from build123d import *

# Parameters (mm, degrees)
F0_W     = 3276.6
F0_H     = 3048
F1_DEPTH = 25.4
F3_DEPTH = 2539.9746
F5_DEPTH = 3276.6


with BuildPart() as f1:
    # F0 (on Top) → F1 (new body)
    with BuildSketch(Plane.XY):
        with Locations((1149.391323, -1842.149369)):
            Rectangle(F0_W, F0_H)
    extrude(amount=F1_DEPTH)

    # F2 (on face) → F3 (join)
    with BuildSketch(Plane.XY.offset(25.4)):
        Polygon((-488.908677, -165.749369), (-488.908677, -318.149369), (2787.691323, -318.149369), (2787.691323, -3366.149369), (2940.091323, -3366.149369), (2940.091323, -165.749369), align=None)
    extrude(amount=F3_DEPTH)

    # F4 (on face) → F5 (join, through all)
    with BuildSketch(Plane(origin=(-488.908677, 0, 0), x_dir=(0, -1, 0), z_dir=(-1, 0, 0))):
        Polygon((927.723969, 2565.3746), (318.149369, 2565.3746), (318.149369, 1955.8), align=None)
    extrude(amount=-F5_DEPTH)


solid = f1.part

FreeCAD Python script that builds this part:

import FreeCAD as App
import Part
import Sketcher
Q = App.Units.Quantity

doc = App.newDocument("Part")
body = doc.addObject("PartDesign::Body", "Body")
body.AllowCompound = True

# Sketch on XY plane
sketch1 = doc.addObject("Sketcher::SketchObject", "Sketch")
body.addObject(sketch1)
sketch1.AttachmentSupport = (doc.XY_Plane, [""])
sketch1.MapMode = "FlatFace"
sketch1.addGeometry(Part.LineSegment(App.Vector(-488.908677, -318.149369, 0), App.Vector(-488.908677, -3366.149369, 0)), False)
sketch1.addGeometry(Part.LineSegment(App.Vector(-488.908677, -3366.149369, 0), App.Vector(2787.691323, -3366.149369, 0)), False)
sketch1.addGeometry(Part.LineSegment(App.Vector(2787.691323, -3366.149369, 0), App.Vector(2787.691323, -318.149369, 0)), False)
sketch1.addGeometry(Part.LineSegment(App.Vector(2787.691323, -318.149369, 0), App.Vector(-488.908677, -318.149369, 0)), False)
sketch1.addConstraint(Sketcher.Constraint("Coincident", 0, 2, 1, 1))
sketch1.addConstraint(Sketcher.Constraint("Coincident", 1, 2, 2, 1))
sketch1.addConstraint(Sketcher.Constraint("Coincident", 2, 2, 3, 1))
sketch1.addConstraint(Sketcher.Constraint("Coincident", 3, 2, 0, 1))
sketch1.addConstraint(Sketcher.Constraint("Vertical", 0))
sketch1.addConstraint(Sketcher.Constraint("Horizontal", 1))
sketch1.addConstraint(Sketcher.Constraint("Vertical", 2))
sketch1.addConstraint(Sketcher.Constraint("Horizontal", 3))
sketch1.addConstraint(Sketcher.Constraint("DistanceX", 1, 1, 1, 2, Q("129 in")))
sketch1.addConstraint(Sketcher.Constraint("DistanceY", 0, 2, 0, 1, Q("120 in")))
sketch1.addConstraint(Sketcher.Constraint("DistanceY", 0, 2, -1, 1, 3366.149369))
sketch1.addConstraint(Sketcher.Constraint("DistanceX", 0, 2, -1, 1, 488.908677))
pad1 = doc.addObject("PartDesign::Pad", "Pad")
body.addObject(pad1)
pad1.Profile = sketch1
pad1.Length = Q("1 in")

# Sketch on XY plane
sketch2 = doc.addObject("Sketcher::SketchObject", "Sketch001")
body.addObject(sketch2)
sketch2.AttachmentSupport = (doc.XY_Plane, [""])
sketch2.MapMode = "FlatFace"
sketch2.AttachmentOffset = App.Placement(App.Vector(0, 0, 1 * 25.4), App.Rotation())
sketch2.addGeometry(Part.LineSegment(App.Vector(-488.908677, -165.749369, 0), App.Vector(-488.908677, -318.149369, 0)), False)
sketch2.addGeometry(Part.LineSegment(App.Vector(-488.908677, -318.149369, 0), App.Vector(2787.691323, -318.149369, 0)), False)
sketch2.addGeometry(Part.LineSegment(App.Vector(2787.691323, -318.149369, 0), App.Vector(2787.691323, -3366.149369, 0)), False)
sketch2.addGeometry(Part.LineSegment(App.Vector(2787.691323, -3366.149369, 0), App.Vector(2940.091323, -3366.149369, 0)), False)
sketch2.addGeometry(Part.LineSegment(App.Vector(2940.091323, -3366.149369, 0), App.Vector(2940.091323, -165.749369, 0)), False)
sketch2.addGeometry(Part.LineSegment(App.Vector(2940.091323, -165.749369, 0), App.Vector(-488.908677, -165.749369, 0)), False)
sketch2.addConstraint(Sketcher.Constraint("Coincident", 0, 2, 1, 1))
sketch2.addConstraint(Sketcher.Constraint("Coincident", 1, 2, 2, 1))
sketch2.addConstraint(Sketcher.Constraint("Coincident", 2, 2, 3, 1))
sketch2.addConstraint(Sketcher.Constraint("Coincident", 3, 2, 4, 1))
sketch2.addConstraint(Sketcher.Constraint("Coincident", 4, 2, 5, 1))
sketch2.addConstraint(Sketcher.Constraint("Coincident", 5, 2, 0, 1))
sketch2.addConstraint(Sketcher.Constraint("Vertical", 0))
sketch2.addConstraint(Sketcher.Constraint("Horizontal", 1))
sketch2.addConstraint(Sketcher.Constraint("Vertical", 2))
sketch2.addConstraint(Sketcher.Constraint("Horizontal", 3))
sketch2.addConstraint(Sketcher.Constraint("Vertical", 4))
sketch2.addConstraint(Sketcher.Constraint("Horizontal", 5))
sketch2.addConstraint(Sketcher.Constraint("Equal", 3, 0))
sketch2.addConstraint(Sketcher.Constraint("DistanceX", 1, 1, 1, 2, Q("129 in")))
sketch2.addConstraint(Sketcher.Constraint("DistanceX", 3, 1, 3, 2, Q("6 in")))
sketch2.addConstraint(Sketcher.Constraint("DistanceY", 2, 2, 2, 1, Q("120 in")))
sketch2.addConstraint(Sketcher.Constraint("DistanceY", 0, 2, -1, 1, 318.149369))
sketch2.addConstraint(Sketcher.Constraint("DistanceX", 0, 2, -1, 1, 488.908677))
pad2 = doc.addObject("PartDesign::Pad", "Pad001")
body.addObject(pad2)
pad2.Profile = sketch2
pad2.Length = Q("99.999 in")

# Sketch on YZ plane
sketch3 = doc.addObject("Sketcher::SketchObject", "Sketch002")
body.addObject(sketch3)
sketch3.AttachmentSupport = (doc.YZ_Plane, [""])
sketch3.MapMode = "FlatFace"
sketch3.AttachmentOffset = App.Placement(App.Vector(0, 0, -488.908677), App.Rotation())
sketch3.addGeometry(Part.LineSegment(App.Vector(-927.723969, 2565.3746, 0), App.Vector(-318.149369, 2565.3746, 0)), False)
sketch3.addGeometry(Part.LineSegment(App.Vector(-318.149369, 2565.3746, 0), App.Vector(-318.149369, 1955.8, 0)), False)
sketch3.addGeometry(Part.LineSegment(App.Vector(-318.149369, 1955.8, 0), App.Vector(-927.723969, 2565.3746, 0)), False)
sketch3.addConstraint(Sketcher.Constraint("Coincident", 0, 2, 1, 1))
sketch3.addConstraint(Sketcher.Constraint("Coincident", 1, 2, 2, 1))
sketch3.addConstraint(Sketcher.Constraint("Coincident", 2, 2, 0, 1))
sketch3.addConstraint(Sketcher.Constraint("Horizontal", 0))
sketch3.addConstraint(Sketcher.Constraint("Vertical", 1))
sketch3.addConstraint(Sketcher.Constraint("Equal", 0, 1))
sketch3.addConstraint(Sketcher.Constraint("DistanceY", -1, 1, 1, 2, Q("77 in")))
sketch3.addConstraint(Sketcher.Constraint("DistanceX", 0, 1, 0, 2, Q("23.999 in")))
sketch3.addConstraint(Sketcher.Constraint("DistanceX", 0, 2, -1, 1, 318.149369))
pad3 = doc.addObject("PartDesign::Pad", "Pad002")
body.addObject(pad3)
pad3.Profile = sketch3
pad3.Type = "UpToLast"

doc.recompute()
